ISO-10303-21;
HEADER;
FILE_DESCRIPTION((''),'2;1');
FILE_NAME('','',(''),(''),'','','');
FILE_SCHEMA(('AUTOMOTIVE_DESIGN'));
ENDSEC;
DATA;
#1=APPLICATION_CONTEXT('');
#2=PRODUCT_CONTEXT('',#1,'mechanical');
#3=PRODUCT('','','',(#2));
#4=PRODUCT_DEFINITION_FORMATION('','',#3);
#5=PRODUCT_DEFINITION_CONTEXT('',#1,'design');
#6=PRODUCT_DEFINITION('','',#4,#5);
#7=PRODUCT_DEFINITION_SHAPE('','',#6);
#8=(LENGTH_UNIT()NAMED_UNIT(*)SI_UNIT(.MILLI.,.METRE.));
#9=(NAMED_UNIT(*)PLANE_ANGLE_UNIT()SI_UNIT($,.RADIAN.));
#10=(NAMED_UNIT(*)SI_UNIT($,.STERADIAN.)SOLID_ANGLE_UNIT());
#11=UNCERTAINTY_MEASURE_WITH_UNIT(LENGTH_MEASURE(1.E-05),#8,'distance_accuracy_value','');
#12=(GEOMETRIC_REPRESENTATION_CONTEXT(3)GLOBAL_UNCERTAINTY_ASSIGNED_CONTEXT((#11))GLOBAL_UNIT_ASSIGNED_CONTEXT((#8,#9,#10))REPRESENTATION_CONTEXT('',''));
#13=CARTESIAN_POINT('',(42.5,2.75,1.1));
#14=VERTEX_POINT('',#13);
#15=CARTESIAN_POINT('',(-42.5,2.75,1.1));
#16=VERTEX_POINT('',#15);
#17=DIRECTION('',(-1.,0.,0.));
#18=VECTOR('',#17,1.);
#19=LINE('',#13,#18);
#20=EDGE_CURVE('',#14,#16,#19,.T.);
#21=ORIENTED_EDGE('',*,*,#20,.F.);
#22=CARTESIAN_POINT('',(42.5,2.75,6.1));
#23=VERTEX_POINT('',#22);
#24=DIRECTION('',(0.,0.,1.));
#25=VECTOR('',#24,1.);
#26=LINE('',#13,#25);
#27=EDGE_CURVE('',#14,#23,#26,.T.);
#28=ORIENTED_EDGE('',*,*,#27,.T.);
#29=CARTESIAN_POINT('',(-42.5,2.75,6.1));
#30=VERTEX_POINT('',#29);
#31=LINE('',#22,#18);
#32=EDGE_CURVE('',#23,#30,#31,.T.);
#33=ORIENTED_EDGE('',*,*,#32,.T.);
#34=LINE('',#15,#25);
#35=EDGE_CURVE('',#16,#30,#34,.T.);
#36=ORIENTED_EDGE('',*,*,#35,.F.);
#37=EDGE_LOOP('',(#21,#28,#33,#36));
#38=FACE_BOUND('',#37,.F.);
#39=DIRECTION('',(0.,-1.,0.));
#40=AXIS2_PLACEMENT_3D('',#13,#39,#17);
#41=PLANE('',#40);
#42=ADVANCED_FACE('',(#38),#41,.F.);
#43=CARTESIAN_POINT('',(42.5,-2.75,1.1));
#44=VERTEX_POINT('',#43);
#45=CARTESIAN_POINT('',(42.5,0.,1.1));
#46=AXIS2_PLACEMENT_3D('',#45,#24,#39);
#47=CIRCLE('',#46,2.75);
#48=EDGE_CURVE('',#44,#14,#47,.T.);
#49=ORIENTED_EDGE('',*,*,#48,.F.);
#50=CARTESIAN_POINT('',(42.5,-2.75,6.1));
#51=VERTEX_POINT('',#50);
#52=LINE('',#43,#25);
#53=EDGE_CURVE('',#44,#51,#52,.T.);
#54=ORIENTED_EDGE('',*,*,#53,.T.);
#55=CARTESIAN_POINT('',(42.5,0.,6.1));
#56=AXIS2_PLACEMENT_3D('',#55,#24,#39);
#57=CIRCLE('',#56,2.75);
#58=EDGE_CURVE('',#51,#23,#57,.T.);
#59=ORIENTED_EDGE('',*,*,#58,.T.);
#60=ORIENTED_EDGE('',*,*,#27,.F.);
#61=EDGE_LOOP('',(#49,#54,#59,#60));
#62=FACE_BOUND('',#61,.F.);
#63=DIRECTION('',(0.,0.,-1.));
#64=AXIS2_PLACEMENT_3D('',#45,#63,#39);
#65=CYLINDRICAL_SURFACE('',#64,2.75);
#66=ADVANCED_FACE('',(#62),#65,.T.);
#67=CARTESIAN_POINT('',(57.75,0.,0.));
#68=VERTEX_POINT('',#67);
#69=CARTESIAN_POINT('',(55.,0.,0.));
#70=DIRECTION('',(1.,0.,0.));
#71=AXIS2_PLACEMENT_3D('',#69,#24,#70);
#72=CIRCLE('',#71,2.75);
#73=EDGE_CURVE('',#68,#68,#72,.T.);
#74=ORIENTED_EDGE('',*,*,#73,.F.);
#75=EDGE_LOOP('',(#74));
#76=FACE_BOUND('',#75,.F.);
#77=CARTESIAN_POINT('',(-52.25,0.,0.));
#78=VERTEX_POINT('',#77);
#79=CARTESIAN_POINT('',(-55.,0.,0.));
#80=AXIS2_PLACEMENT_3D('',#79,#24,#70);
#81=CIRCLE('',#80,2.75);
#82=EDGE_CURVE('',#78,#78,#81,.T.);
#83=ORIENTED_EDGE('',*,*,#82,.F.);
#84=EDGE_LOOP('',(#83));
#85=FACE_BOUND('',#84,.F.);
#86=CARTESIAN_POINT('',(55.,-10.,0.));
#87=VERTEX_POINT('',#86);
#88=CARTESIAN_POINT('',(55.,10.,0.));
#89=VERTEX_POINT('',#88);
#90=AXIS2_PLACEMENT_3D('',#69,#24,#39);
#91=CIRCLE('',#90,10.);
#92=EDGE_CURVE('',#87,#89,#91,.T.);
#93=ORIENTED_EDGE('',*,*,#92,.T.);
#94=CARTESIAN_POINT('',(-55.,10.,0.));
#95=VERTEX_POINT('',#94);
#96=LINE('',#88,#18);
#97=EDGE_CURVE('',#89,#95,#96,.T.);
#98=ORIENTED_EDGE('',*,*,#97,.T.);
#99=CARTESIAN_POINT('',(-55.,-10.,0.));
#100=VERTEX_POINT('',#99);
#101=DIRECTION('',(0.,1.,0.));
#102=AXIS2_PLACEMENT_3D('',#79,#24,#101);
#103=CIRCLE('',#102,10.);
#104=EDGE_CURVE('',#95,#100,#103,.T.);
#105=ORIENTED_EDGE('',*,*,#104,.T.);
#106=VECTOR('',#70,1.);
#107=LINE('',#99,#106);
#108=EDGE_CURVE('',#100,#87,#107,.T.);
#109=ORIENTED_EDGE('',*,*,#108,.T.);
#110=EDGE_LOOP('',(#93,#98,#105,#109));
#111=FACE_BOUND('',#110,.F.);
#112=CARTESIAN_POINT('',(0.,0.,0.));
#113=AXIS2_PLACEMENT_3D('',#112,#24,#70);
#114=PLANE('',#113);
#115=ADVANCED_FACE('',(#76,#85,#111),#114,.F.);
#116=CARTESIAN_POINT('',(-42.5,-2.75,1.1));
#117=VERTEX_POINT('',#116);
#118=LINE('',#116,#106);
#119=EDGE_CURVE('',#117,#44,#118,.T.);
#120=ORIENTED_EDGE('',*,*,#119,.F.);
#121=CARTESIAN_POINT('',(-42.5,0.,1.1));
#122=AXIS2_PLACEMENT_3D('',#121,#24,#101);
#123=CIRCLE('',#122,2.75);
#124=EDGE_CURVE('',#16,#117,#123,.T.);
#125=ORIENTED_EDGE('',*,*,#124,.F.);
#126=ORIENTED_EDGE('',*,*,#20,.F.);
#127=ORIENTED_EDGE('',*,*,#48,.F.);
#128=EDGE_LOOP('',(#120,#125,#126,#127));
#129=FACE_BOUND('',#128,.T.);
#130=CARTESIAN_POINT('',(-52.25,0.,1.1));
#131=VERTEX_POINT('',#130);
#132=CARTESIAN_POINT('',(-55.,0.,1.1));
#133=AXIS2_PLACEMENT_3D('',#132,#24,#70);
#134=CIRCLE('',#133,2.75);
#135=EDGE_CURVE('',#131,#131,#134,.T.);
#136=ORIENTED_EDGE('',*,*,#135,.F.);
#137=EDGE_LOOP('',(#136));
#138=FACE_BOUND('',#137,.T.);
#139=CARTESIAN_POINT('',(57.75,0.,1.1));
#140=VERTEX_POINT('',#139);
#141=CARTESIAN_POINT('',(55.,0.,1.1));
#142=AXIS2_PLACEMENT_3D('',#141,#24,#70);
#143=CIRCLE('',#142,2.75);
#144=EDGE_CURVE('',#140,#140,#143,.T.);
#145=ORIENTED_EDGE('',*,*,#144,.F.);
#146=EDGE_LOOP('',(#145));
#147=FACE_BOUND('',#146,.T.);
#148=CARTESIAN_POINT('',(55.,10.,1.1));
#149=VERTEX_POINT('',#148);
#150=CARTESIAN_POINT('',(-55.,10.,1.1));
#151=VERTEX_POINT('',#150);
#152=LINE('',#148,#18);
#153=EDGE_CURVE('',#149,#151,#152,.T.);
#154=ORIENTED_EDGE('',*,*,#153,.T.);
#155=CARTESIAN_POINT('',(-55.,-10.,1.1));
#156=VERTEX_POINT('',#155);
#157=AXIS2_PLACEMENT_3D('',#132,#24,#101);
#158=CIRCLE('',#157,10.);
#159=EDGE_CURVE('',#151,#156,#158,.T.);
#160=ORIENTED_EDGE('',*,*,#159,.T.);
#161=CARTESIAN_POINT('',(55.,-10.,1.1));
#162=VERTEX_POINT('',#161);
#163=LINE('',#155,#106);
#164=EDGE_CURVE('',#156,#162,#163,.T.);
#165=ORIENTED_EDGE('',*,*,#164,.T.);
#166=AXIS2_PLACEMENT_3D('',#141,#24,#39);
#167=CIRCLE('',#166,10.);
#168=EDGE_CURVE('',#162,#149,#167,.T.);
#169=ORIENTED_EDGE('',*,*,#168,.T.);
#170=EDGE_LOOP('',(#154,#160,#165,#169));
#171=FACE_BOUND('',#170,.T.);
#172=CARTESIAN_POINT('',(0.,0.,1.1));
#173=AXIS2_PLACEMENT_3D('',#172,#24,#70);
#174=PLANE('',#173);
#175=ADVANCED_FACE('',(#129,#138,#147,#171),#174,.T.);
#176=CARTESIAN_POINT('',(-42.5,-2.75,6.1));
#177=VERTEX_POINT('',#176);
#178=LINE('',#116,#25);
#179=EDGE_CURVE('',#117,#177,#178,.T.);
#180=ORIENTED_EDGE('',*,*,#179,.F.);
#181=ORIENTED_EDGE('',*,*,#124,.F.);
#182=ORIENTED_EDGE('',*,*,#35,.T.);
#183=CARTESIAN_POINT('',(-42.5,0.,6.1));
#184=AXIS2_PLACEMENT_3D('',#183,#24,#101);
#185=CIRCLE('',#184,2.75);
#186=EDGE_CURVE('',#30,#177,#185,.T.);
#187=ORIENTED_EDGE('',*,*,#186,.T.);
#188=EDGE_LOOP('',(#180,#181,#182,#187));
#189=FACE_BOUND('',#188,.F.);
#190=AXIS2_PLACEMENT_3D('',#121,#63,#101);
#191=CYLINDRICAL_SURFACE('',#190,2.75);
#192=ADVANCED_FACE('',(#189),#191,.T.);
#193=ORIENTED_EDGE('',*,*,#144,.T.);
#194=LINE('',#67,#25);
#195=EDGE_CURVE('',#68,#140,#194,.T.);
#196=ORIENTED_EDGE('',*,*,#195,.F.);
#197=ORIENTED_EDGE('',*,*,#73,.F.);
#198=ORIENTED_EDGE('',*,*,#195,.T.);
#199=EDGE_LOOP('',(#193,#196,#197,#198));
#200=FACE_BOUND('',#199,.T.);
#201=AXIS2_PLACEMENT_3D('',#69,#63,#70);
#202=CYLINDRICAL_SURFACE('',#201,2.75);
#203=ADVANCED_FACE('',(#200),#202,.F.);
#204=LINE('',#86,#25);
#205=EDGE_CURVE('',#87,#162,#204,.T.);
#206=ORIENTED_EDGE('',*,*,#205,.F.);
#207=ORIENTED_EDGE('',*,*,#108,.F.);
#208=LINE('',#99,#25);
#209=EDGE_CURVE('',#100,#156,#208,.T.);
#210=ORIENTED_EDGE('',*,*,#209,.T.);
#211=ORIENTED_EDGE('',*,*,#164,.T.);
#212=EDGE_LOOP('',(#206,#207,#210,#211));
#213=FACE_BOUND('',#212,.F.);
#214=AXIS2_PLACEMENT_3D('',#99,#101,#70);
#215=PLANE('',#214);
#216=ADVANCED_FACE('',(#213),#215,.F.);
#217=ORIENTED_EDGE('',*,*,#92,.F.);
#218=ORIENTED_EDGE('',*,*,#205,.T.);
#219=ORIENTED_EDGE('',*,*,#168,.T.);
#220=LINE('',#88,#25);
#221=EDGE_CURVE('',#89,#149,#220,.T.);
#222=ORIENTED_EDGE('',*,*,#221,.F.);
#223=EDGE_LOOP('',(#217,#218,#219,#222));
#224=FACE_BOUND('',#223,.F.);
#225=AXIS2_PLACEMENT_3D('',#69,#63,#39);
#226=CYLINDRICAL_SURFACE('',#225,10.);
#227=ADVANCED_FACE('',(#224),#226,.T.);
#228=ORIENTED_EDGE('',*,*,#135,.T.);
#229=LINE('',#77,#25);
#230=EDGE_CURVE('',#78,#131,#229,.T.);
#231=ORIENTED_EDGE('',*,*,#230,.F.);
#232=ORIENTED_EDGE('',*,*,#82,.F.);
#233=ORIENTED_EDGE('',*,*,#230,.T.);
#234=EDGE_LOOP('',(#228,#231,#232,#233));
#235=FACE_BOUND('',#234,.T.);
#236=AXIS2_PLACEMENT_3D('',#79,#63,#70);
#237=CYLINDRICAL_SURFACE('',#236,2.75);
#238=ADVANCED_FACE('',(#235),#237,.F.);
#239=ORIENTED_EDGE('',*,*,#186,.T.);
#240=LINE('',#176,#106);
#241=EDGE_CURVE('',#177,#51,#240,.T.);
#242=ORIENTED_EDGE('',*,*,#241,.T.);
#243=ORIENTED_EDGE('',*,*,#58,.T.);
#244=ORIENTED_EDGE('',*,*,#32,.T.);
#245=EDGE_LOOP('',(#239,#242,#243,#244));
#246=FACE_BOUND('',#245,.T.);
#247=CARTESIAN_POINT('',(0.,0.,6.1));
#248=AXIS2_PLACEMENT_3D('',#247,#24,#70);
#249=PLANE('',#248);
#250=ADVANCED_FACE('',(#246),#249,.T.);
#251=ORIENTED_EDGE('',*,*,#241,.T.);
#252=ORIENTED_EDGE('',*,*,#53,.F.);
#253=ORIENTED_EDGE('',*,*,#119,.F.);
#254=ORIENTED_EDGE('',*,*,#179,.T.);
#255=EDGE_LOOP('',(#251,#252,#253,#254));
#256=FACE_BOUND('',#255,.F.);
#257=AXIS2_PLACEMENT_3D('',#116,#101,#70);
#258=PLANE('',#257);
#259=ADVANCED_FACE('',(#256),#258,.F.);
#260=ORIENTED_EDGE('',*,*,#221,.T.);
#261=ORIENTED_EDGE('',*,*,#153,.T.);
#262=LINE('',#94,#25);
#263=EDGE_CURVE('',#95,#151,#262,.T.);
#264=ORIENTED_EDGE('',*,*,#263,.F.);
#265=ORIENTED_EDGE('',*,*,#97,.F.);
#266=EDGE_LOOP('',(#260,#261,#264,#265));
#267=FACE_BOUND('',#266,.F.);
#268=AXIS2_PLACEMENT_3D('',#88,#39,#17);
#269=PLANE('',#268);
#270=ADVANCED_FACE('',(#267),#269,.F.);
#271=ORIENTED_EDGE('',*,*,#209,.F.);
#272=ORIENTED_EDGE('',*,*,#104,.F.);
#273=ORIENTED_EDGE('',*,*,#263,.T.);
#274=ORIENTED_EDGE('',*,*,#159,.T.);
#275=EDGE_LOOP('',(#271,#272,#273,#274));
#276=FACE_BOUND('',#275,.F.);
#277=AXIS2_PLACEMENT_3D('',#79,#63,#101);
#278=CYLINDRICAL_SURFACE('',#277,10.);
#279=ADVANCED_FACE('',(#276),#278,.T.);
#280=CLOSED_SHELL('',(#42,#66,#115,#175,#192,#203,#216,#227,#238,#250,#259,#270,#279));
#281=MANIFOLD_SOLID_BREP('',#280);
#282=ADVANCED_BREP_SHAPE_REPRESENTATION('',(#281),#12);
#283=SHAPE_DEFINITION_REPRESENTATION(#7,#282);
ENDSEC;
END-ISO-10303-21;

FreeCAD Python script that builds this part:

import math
import FreeCAD as App
import Part
import Sketcher
from FreeCAD import Vector
Q = App.Units.Quantity

doc = App.newDocument("Part")
params = doc.addObject("Spreadsheet::Sheet", "Params")
for row, (alias, value) in enumerate([
    ("sketch1_radius", "10 mm"),
    ("sketch1_diameter", "5.5 mm"),
    ("sketch1_width", "110 mm"),
    ("pad1_length", "1.1 mm"),
    ("sketch2_width", "85 mm"),
    ("sketch2_radius", "2.75 mm"),
    ("pad2_length", "5 mm"),
], start=1):
    params.set(f"A{row}", alias)
    params.set(f"B{row}", "=" + value)
    params.setAlias(f"B{row}", alias)

body = doc.addObject("PartDesign::Body", "Body")

# Sketch on XY plane
sketch1 = body.newObject("Sketcher::SketchObject", "Sketch")
sketch1.AttachmentSupport = (doc.getObject("XY_Plane"), [""])
sketch1.MapMode = "FlatFace"
sketch1.addGeometry(Part.ArcOfCircle(Part.Circle(Vector(-55, 0, 0), Vector(0, 0, 1), 10), math.radians(90), math.radians(270)), False)
sketch1.addGeometry(Part.LineSegment(Vector(-55, -10, 0), Vector(55, -10, 0)), False)
sketch1.addGeometry(Part.ArcOfCircle(Part.Circle(Vector(55, 0, 0), Vector(0, 0, 1), 10), math.radians(-90), math.radians(90)), False)
sketch1.addGeometry(Part.LineSegment(Vector(55, 10, 0), Vector(-55, 10, 0)), False)
sketch1.addGeometry(Part.Circle(Vector(-55, 0, 0), Vector(0, 0, 1), 2.8), False)
sketch1.addGeometry(Part.Circle(Vector(55, 0, 0), Vector(0, 0, 1), 2.8), False)
sketch1.addConstraint(Sketcher.Constraint("Tangent", 0, 2, 1, 1))
sketch1.addConstraint(Sketcher.Constraint("Tangent", 1, 2, 2, 1))
sketch1.addConstraint(Sketcher.Constraint("Tangent", 2, 2, 3, 1))
sketch1.addConstraint(Sketcher.Constraint("Tangent", 3, 2, 0, 1))
sketch1.addConstraint(Sketcher.Constraint("Horizontal", 1))
sketch1.addConstraint(Sketcher.Constraint("Horizontal", 3))
sketch1.addConstraint(Sketcher.Constraint("Coincident", 4, 3, 0, 3))
sketch1.addConstraint(Sketcher.Constraint("Coincident", 5, 3, 2, 3))
sketch1.addConstraint(Sketcher.Constraint("Equal", 4, 5))
sketch1.addConstraint(Sketcher.Constraint("Symmetric", 0, 3, 2, 3, -1, 1))
sketch1.addConstraint(Sketcher.Constraint("Radius", 0, Q("10 mm")))
sketch1.addConstraint(Sketcher.Constraint("Diameter", 4, Q("5.5 mm")))
sketch1.addConstraint(Sketcher.Constraint("DistanceX", 1, 1, 1, 2, Q("110 mm")))
sketch1.setExpression("Constraints[10]", "Params.sketch1_radius")
sketch1.setExpression("Constraints[11]", "Params.sketch1_diameter")
sketch1.setExpression("Constraints[12]", "Params.sketch1_width")
pad1 = body.newObject("PartDesign::Pad", "Pad")
pad1.Profile = sketch1
pad1.setExpression("Length", "Params.pad1_length")

# Sketch on XY plane
sketch2 = body.newObject("Sketcher::SketchObject", "Sketch001")
sketch2.AttachmentSupport = (doc.getObject("XY_Plane"), [""])
sketch2.MapMode = "FlatFace"
sketch2.AttachmentOffset = App.Placement(Vector(0, 0, 1.1), App.Rotation())
sketch2.addGeometry(Part.ArcOfCircle(Part.Circle(Vector(42.5, 0, 0), Vector(0, 0, 1), 2.8), math.radians(-90), math.radians(90)), False)
sketch2.addGeometry(Part.LineSegment(Vector(42.5, 2.8, 0), Vector(-42.5, 2.8, 0)), False)
sketch2.addGeometry(Part.ArcOfCircle(Part.Circle(Vector(-42.5, 0, 0), Vector(0, 0, 1), 2.8), math.radians(90), math.radians(270)), False)
sketch2.addGeometry(Part.LineSegment(Vector(-42.5, -2.8, 0), Vector(42.5, -2.8, 0)), False)
sketch2.addConstraint(Sketcher.Constraint("Tangent", 0, 2, 1, 1))
sketch2.addConstraint(Sketcher.Constraint("Tangent", 1, 2, 2, 1))
sketch2.addConstraint(Sketcher.Constraint("Tangent", 2, 2, 3, 1))
sketch2.addConstraint(Sketcher.Constraint("Tangent", 3, 2, 0, 1))
sketch2.addConstraint(Sketcher.Constraint("Horizontal", 1))
sketch2.addConstraint(Sketcher.Constraint("Horizontal", 3))
sketch2.addConstraint(Sketcher.Constraint("Symmetric", 0, 3, 2, 3, -1, 1))
sketch2.addConstraint(Sketcher.Constraint("DistanceX", 1, 2, 1, 1, Q("85 mm")))
sketch2.addConstraint(Sketcher.Constraint("Radius", 0, Q("2.75 mm")))
sketch2.setExpression("Constraints[7]", "Params.sketch2_width")
sketch2.setExpression("Constraints[8]", "Params.sketch2_radius")
pad2 = body.newObject("PartDesign::Pad", "Pad001")
pad2.Profile = sketch2
pad2.setExpression("Length", "Params.pad2_length")

doc.recompute()
